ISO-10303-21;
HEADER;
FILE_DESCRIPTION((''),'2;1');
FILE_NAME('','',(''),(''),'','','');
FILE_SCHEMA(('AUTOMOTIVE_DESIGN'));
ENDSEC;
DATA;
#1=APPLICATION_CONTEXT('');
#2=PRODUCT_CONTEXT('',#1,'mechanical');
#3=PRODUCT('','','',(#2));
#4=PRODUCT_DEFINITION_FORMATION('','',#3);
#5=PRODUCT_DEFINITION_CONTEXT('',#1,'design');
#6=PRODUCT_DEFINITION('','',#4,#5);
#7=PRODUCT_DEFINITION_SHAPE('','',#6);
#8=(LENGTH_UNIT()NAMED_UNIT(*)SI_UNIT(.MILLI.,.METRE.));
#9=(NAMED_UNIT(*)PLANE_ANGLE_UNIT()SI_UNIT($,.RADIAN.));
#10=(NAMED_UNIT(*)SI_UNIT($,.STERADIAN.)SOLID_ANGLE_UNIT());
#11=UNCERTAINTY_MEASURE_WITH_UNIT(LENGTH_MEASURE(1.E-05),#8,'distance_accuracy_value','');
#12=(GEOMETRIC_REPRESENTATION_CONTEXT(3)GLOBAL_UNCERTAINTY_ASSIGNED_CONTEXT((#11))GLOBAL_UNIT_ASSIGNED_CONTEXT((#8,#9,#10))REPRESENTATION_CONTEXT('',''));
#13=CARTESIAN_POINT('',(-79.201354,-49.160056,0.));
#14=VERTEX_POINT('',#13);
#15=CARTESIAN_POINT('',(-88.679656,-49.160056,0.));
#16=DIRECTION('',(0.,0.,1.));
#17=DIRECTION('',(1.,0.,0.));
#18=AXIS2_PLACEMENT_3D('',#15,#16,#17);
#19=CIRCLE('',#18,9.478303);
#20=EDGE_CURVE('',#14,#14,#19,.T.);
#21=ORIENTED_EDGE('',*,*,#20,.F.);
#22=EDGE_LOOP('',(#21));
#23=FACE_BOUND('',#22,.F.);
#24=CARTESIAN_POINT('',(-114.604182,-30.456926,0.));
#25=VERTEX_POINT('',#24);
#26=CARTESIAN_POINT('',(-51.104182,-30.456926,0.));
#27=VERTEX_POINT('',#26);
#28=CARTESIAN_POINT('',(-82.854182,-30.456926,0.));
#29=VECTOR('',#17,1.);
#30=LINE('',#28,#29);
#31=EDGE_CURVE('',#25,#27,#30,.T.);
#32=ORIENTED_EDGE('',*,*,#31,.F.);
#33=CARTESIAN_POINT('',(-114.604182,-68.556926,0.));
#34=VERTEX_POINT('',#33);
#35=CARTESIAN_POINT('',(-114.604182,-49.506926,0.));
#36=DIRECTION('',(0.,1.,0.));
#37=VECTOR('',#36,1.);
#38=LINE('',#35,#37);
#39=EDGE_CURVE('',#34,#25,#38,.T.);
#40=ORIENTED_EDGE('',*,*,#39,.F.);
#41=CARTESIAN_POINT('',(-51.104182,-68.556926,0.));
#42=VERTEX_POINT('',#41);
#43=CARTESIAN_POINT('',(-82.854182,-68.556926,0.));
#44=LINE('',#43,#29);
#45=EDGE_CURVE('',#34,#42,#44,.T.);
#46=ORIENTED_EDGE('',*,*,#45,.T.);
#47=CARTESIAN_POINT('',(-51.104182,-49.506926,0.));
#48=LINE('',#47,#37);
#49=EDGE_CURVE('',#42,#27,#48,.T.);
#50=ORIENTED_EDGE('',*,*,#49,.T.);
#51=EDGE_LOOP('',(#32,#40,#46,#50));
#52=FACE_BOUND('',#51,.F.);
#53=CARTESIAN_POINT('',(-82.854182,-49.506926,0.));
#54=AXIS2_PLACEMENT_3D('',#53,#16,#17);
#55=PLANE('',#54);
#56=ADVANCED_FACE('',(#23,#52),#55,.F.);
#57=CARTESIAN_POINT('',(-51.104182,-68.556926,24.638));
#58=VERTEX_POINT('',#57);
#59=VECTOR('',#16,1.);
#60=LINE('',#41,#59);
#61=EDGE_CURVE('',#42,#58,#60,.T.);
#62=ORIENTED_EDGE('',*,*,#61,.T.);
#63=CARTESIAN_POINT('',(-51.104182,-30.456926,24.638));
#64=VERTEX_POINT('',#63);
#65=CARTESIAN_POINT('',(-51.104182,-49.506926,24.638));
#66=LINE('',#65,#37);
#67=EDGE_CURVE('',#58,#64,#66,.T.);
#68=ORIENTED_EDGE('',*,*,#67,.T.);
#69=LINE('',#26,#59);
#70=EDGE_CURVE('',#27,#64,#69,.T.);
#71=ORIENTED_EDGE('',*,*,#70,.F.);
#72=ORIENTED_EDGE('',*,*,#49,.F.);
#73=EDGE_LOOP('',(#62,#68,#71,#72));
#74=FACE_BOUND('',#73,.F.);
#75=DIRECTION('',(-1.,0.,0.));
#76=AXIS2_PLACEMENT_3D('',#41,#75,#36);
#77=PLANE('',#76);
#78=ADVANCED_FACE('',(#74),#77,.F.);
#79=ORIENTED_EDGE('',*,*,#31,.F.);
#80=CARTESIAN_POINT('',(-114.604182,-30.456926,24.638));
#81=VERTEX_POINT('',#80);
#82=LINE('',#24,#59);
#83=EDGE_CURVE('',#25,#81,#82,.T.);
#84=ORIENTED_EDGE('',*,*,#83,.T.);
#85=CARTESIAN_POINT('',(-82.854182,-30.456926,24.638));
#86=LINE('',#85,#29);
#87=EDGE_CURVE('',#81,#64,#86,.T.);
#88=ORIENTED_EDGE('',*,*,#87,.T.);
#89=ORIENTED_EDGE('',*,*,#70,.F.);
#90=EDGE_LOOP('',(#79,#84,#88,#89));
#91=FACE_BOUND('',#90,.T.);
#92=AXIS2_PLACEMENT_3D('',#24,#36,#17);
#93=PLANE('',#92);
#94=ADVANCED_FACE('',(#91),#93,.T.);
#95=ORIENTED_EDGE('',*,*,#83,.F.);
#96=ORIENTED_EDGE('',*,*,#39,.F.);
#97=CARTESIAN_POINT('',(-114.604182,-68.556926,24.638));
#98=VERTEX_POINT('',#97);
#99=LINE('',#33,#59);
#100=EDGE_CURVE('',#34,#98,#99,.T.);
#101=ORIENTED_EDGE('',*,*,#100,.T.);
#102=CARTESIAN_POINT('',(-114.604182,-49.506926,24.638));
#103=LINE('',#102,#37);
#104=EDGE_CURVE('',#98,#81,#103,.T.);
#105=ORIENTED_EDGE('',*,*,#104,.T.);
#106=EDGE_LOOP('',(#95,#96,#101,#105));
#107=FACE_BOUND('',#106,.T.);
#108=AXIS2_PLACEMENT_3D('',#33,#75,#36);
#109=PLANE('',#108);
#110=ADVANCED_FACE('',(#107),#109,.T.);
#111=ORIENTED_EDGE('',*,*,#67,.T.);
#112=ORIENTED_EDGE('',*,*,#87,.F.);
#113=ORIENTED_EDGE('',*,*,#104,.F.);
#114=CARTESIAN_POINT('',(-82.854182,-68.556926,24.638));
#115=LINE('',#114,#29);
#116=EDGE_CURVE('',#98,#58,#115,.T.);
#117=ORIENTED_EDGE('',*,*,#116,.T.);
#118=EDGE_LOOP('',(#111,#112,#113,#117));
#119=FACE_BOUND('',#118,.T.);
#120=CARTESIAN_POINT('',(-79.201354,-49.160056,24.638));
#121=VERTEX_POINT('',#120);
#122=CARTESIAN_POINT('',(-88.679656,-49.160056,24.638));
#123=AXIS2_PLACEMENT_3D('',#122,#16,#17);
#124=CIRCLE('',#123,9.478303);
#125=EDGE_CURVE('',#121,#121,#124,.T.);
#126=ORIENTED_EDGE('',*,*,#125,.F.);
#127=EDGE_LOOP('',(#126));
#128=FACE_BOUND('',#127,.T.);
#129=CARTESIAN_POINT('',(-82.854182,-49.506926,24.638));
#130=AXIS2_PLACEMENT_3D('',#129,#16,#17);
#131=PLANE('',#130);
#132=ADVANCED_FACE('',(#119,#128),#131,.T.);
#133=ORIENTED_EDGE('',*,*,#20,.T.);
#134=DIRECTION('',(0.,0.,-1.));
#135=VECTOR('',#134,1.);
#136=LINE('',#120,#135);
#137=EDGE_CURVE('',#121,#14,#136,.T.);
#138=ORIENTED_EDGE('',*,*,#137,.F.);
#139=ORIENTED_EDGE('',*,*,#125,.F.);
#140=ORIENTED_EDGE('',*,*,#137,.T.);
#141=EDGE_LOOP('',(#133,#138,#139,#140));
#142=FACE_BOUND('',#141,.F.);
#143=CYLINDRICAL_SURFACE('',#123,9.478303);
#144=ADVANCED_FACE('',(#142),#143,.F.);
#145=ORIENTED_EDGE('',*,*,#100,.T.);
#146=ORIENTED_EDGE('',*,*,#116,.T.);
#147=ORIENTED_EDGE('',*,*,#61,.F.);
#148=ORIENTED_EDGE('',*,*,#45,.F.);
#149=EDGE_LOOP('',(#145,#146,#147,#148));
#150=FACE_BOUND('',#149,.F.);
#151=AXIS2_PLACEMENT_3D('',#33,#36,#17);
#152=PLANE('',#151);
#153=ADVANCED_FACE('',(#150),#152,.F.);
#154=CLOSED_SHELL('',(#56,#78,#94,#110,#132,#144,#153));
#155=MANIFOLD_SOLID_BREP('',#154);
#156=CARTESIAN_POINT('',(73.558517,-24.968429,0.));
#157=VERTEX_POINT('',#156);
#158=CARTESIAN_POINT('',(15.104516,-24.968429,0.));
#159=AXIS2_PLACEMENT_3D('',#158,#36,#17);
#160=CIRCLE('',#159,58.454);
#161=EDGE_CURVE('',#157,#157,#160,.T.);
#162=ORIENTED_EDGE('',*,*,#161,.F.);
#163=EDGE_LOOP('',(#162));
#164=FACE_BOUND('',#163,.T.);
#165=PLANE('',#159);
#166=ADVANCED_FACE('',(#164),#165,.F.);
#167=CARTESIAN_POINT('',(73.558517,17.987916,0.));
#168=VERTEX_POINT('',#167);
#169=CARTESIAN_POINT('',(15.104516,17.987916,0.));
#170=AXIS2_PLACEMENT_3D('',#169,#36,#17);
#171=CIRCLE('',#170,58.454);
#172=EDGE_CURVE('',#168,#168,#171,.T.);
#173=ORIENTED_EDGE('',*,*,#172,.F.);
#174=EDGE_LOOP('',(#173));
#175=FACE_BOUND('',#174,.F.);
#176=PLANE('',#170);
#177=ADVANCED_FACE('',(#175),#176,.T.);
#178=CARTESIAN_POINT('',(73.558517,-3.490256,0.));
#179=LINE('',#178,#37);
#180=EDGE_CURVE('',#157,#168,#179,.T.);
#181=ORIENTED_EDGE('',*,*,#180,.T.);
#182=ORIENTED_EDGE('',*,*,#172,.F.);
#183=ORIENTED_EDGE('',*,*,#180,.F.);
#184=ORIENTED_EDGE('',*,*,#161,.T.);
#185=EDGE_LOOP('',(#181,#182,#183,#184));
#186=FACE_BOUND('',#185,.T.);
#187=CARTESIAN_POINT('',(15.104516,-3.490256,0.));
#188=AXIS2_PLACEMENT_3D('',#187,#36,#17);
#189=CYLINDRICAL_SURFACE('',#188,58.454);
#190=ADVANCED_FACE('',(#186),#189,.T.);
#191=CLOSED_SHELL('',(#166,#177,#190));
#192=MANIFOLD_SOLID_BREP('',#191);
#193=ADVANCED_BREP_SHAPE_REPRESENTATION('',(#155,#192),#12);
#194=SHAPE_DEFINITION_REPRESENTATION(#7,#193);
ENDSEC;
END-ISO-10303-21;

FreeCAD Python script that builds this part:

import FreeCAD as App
import Part
import Sketcher
Q = App.Units.Quantity

doc = App.newDocument("Part")
body = doc.addObject("PartDesign::Body", "Body")

# Sketch on XY plane
sketch1 = body.newObject("Sketcher::SketchObject", "Sketch")
sketch1.AttachmentSupport = (doc.getObject("XY_Plane"), [""])
sketch1.MapMode = "FlatFace"
sketch1.addGeometry([
    Part.LineSegment(App.Vector(15, 18, 0), App.Vector(15, -25, 0)),
    Part.LineSegment(App.Vector(15, -25, 0), App.Vector(74, -25, 0)),
    Part.LineSegment(App.Vector(74, -25, 0), App.Vector(74, 18, 0)),
    Part.LineSegment(App.Vector(74, 18, 0), App.Vector(15, 18, 0)),
], False)
sketch1.addGeometry(Part.LineSegment(App.Vector(15, -25, 0), App.Vector(15, 18, 0)), True)  # axis
sketch1.addConstraint([
    Sketcher.Constraint("Coincident", 0, 2, 1, 1),
    Sketcher.Constraint("Coincident", 1, 2, 2, 1),
    Sketcher.Constraint("Coincident", 2, 2, 3, 1),
    Sketcher.Constraint("Coincident", 3, 2, 0, 1),
    Sketcher.Constraint("Vertical", 0),
    Sketcher.Constraint("Horizontal", 1),
    Sketcher.Constraint("Vertical", 2),
    Sketcher.Constraint("Horizontal", 3),
    Sketcher.Constraint("Vertical", 4),
    Sketcher.Constraint("Coincident", 4, 1, 0, 2),
    Sketcher.Constraint("Horizontal", 2, 2, 4, 2),
    Sketcher.Constraint("DistanceX", 1, 1, 1, 2, Q("58.454 mm")),
    Sketcher.Constraint("DistanceY", 0, 2, 0, 1, Q("42.956345 mm")),
    Sketcher.Constraint("DistanceY", 0, 2, -1, 1, Q("24.968429 mm")),
    Sketcher.Constraint("DistanceX", -1, 1, 0, 2, Q("15.104516 mm")),
])
revolution = body.newObject("PartDesign::Revolution", "Revolution")
revolution.Profile = sketch1
revolution.ReferenceAxis = (sketch1, ["Axis0"])
revolution.Angle = 360
body2 = doc.addObject("PartDesign::Body", "Body001")

# Sketch on XY plane
sketch2 = body2.newObject("Sketcher::SketchObject", "Sketch001")
sketch2.AttachmentSupport = (doc.getObject("XY_Plane001"), [""])
sketch2.MapMode = "FlatFace"
sketch2.addGeometry([
    Part.LineSegment(App.Vector(-115, -30, 0), App.Vector(-115, -69, 0)),
    Part.LineSegment(App.Vector(-115, -69, 0), App.Vector(-51, -69, 0)),
    Part.LineSegment(App.Vector(-51, -69, 0), App.Vector(-51, -30, 0)),
    Part.LineSegment(App.Vector(-51, -30, 0), App.Vector(-115, -30, 0)),
], False)
sketch2.addConstraint([
    Sketcher.Constraint("Coincident", 0, 2, 1, 1),
    Sketcher.Constraint("Coincident", 1, 2, 2, 1),
    Sketcher.Constraint("Coincident", 2, 2, 3, 1),
    Sketcher.Constraint("Coincident", 3, 2, 0, 1),
    Sketcher.Constraint("Vertical", 0),
    Sketcher.Constraint("Horizontal", 1),
    Sketcher.Constraint("Vertical", 2),
    Sketcher.Constraint("Horizontal", 3),
    Sketcher.Constraint("DistanceX", 1, 1, 1, 2, Q("2.5 in")),
    Sketcher.Constraint("DistanceY", 0, 2, 0, 1, Q("1.5 in")),
    Sketcher.Constraint("DistanceX", 0, 2, -1, 1, Q("114.604182 mm")),
    Sketcher.Constraint("DistanceY", 0, 2, -1, 1, Q("68.556926 mm")),
])
pad1 = body2.newObject("PartDesign::Pad", "Pad")
pad1.Profile = sketch2
pad1.Length = Q("0.97 in")

# Sketch on XY plane
sketch3 = body2.newObject("Sketcher::SketchObject", "Sketch002")
sketch3.AttachmentSupport = (doc.getObject("XY_Plane001"), [""])
sketch3.MapMode = "FlatFace"
sketch3.AttachmentOffset = App.Placement(App.Vector(0, 0, 0.97 * 25.4), App.Rotation())
sketch3.addGeometry(Part.Circle(App.Vector(-89, -49, 0), App.Vector(0, 0, 1), 9), False)
sketch3.addConstraint([
    Sketcher.Constraint("Diameter", 0, Q("18.956606 mm")),
    Sketcher.Constraint("DistanceX", 0, 3, -1, 1, Q("88.679656 mm")),
    Sketcher.Constraint("DistanceY", 0, 3, -1, 1, Q("49.160056 mm")),
])
pocket1 = body2.newObject("PartDesign::Pocket", "Pocket")
pocket1.Profile = sketch3
pocket1.Length = Q("2.84 in")

doc.recompute()
